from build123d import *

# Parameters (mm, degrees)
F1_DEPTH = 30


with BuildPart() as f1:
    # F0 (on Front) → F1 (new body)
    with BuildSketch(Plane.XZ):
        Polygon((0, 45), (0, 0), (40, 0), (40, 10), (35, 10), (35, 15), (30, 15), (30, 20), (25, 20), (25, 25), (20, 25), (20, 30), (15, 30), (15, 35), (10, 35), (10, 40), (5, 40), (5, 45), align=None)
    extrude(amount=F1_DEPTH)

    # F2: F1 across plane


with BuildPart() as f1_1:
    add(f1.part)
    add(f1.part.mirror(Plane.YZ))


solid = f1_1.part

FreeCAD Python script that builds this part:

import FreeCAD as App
import Part
import Sketcher

V = App.Vector


def add_polygon(sketch, points):
    """Adds a closed chain of lines whose ends are joined by coincident constraints."""
    first, n = sketch.GeometryCount, len(points)
    for a, b in zip(points, points[1:] + points[:1]):
        sketch.addGeometry(Part.LineSegment(App.Vector(*a, 0), App.Vector(*b, 0)), False)
    for i in range(n):
        sketch.addConstraint(Sketcher.Constraint("Coincident", first + i, 2, first + (i + 1) % n, 1))

doc = App.newDocument("Part")
body = doc.addObject("PartDesign::Body", "Body")

sketch1 = body.newObject("Sketcher::SketchObject", "Sketch")
sketch1.AttachmentSupport = (doc.getObject("XZ_Plane"), [""])
sketch1.MapMode = "FlatFace"
add_polygon(sketch1, [(0, 45), (0, 0), (40, 0), (40, 10), (35, 10), (35, 15), (30, 15), (30, 20), (25, 20), (25, 25), (20, 25), (20, 30), (15, 30), (15, 35), (10, 35), (10, 40), (5, 40), (5, 45)])
sketch1.addConstraint(Sketcher.Constraint("Vertical", 0))
sketch1.addConstraint(Sketcher.Constraint("Horizontal", 1))
sketch1.addConstraint(Sketcher.Constraint("Vertical", 2))
sketch1.addConstraint(Sketcher.Constraint("Horizontal", 3))
sketch1.addConstraint(Sketcher.Constraint("Vertical", 4))
sketch1.addConstraint(Sketcher.Constraint("Horizontal", 5))
sketch1.addConstraint(Sketcher.Constraint("Vertical", 6))
sketch1.addConstraint(Sketcher.Constraint("Horizontal", 7))
sketch1.addConstraint(Sketcher.Constraint("Vertical", 8))
sketch1.addConstraint(Sketcher.Constraint("Horizontal", 9))
sketch1.addConstraint(Sketcher.Constraint("Vertical", 10))
sketch1.addConstraint(Sketcher.Constraint("Horizontal", 11))
sketch1.addConstraint(Sketcher.Constraint("Vertical", 12))
sketch1.addConstraint(Sketcher.Constraint("Horizontal", 13))
sketch1.addConstraint(Sketcher.Constraint("Vertical", 14))
sketch1.addConstraint(Sketcher.Constraint("Horizontal", 15))
sketch1.addConstraint(Sketcher.Constraint("Vertical", 16))
sketch1.addConstraint(Sketcher.Constraint("Horizontal", 17))
sketch1.addConstraint(Sketcher.Constraint("Coincident", 0, 2, -1, 1))
sketch1.addConstraint(Sketcher.Constraint("Equal", 3, 5))
sketch1.addConstraint(Sketcher.Constraint("Equal", 5, 7))
sketch1.addConstraint(Sketcher.Constraint("Equal", 7, 9))
sketch1.addConstraint(Sketcher.Constraint("Equal", 9, 11))
sketch1.addConstraint(Sketcher.Constraint("Equal", 11, 13))
sketch1.addConstraint(Sketcher.Constraint("Equal", 13, 15))
sketch1.addConstraint(Sketcher.Constraint("Equal", 15, 17))
sketch1.addConstraint(Sketcher.Constraint("Equal", 17, 4))
sketch1.addConstraint(Sketcher.Constraint("Equal", 4, 6))
sketch1.addConstraint(Sketcher.Constraint("Equal", 6, 8))
sketch1.addConstraint(Sketcher.Constraint("Equal", 8, 10))
sketch1.addConstraint(Sketcher.Constraint("Equal", 10, 12))
sketch1.addConstraint(Sketcher.Constraint("Equal", 12, 14))
sketch1.addConstraint(Sketcher.Constraint("Equal", 14, 16))
sketch1.addConstraint(Sketcher.Constraint("DistanceX", 1, 1, 1, 2, 40.0))
sketch1.addConstraint(Sketcher.Constraint("DistanceY", 0, 2, 0, 1, 45.0))
pad1 = body.newObject("PartDesign::Pad", "Pad")
pad1.Profile = sketch1
pad1.Length = 30
body2 = doc.addObject("PartDesign::Body", "Body001")
doc.recompute()

body2.BaseFeature = body
doc.recompute()

mirroring = doc.addObject("Part::Mirroring", "Mirroring")
mirroring.Source = body
mirroring.Base = V(0, 0, 0)
mirroring.Normal = V(1, 0, 0)
body3 = doc.addObject("PartDesign::Body", "Body002")
body3.BaseFeature = mirroring
boolean = body2.newObject("PartDesign::Boolean", "Boolean")
boolean.Type = "Fuse"
boolean.addObjects([body3])
doc.recompute()
mirroring.Visibility = False

doc.recompute()
